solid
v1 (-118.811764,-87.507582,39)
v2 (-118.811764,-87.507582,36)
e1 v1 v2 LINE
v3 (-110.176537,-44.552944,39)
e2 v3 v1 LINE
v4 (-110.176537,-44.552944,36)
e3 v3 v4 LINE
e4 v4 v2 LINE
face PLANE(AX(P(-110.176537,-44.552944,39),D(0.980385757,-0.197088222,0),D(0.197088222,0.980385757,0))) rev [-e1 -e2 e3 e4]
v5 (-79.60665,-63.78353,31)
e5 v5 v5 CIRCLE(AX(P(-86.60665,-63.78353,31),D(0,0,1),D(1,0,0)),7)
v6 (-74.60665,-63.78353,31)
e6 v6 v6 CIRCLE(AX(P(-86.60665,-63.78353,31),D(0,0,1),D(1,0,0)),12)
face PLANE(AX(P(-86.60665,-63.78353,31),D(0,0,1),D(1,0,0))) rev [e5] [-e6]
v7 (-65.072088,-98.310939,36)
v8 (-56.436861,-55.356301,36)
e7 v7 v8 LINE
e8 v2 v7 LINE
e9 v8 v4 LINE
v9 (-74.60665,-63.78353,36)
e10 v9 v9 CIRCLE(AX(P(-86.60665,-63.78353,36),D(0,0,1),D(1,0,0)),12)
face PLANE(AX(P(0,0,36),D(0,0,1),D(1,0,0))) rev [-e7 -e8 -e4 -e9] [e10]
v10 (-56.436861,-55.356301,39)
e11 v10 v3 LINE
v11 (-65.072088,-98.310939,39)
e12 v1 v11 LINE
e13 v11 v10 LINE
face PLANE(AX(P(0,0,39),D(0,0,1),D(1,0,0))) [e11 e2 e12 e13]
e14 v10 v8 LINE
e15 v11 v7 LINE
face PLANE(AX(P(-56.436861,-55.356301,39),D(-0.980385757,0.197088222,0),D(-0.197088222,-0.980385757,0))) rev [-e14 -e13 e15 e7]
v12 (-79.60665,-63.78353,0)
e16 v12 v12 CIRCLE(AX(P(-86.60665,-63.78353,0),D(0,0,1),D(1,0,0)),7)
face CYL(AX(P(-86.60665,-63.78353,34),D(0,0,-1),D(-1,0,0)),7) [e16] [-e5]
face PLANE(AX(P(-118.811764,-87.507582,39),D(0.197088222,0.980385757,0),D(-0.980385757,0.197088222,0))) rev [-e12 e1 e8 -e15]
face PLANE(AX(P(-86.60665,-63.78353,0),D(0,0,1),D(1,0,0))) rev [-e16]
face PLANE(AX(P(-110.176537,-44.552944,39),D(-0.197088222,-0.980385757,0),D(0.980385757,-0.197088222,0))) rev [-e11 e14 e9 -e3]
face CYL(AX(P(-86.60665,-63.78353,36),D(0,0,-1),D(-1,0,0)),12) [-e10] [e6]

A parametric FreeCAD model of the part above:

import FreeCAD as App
import Part
import Sketcher

V = App.Vector
Q = App.Units.Quantity


def add_polygon(sketch, points):
    """Adds a closed chain of lines whose ends are joined by coincident constraints."""
    first, n = sketch.GeometryCount, len(points)
    for a, b in zip(points, points[1:] + points[:1]):
        sketch.addGeometry(Part.LineSegment(App.Vector(*a, 0), App.Vector(*b, 0)), False)
    for i in range(n):
        sketch.addConstraint(Sketcher.Constraint("Coincident", first + i, 2, first + (i + 1) % n, 1))

doc = App.newDocument("Part")
body = doc.addObject("PartDesign::Body", "Body")

# Sketch on XY plane
sketch1 = body.newObject("Sketcher::SketchObject", "Sketch")
sketch1.AttachmentSupport = (doc.getObject("XY_Plane"), [""])
sketch1.MapMode = "FlatFace"
sketch1.addGeometry(Part.Circle(V(-87, -64, 0), V(0, 0, 1), 7), False)
sketch1.addConstraint([
    Sketcher.Constraint("Diameter", 0, Q("14 mm")),
    Sketcher.Constraint("DistanceX", 0, 3, -1, 1, Q("86.60665 mm")),
    Sketcher.Constraint("DistanceY", 0, 3, -1, 1, Q("63.78353 mm")),
])
pad1 = body.newObject("PartDesign::Pad", "Pad")
pad1.Profile = sketch1
pad1.Length = 34

# Sketch on XY plane
sketch2 = body.newObject("Sketcher::SketchObject", "Sketch001")
sketch2.AttachmentSupport = (doc.getObject("XY_Plane"), [""])
sketch2.MapMode = "FlatFace"
sketch2.AttachmentOffset = App.Placement(V(0, 0, 34), App.Rotation())
sketch2.addGeometry(Part.Circle(V(-87, -64, 0), V(0, 0, 1), 12), False)
sketch2.addConstraint([
    Sketcher.Constraint("Diameter", 0, Q("24 mm")),
    Sketcher.Constraint("DistanceX", 0, 3, -1, 1, Q("86.60665 mm")),
    Sketcher.Constraint("DistanceY", 0, 3, -1, 1, Q("63.78353 mm")),
])
pad2 = body.newObject("PartDesign::Pad", "Pad001")
pad2.Profile = sketch2
pad2.Type = "TwoLengths"
pad2.Length = 2
pad2.Length2 = 3

# Sketch on XY plane
sketch3 = body.newObject("Sketcher::SketchObject", "Sketch002")
sketch3.AttachmentSupport = (doc.getObject("XY_Plane"), [""])
sketch3.MapMode = "FlatFace"
sketch3.AttachmentOffset = App.Placement(V(0, 0, 36), App.Rotation())
add_polygon(sketch3, [(-56, -55), (-110, -45), (-119, -88), (-65, -98)])  # lines 0-3
sketch3.addConstraint([
    Sketcher.Constraint("Perpendicular", 0, 1),
    Sketcher.Constraint("Perpendicular", 1, 2),
    Sketcher.Constraint("Perpendicular", 2, 3),
    Sketcher.Constraint("DistanceY", 3, 2, -1, 1, Q("55.356301 mm")),
    Sketcher.Constraint("DistanceY", 2, 2, -1, 1, Q("98.310939 mm")),
    Sketcher.Constraint("DistanceX", 3, 2, -1, 1, Q("56.436861 mm")),
    Sketcher.Constraint("DistanceX", 0, 2, 2, 2, Q("45.10445 mm")),
    Sketcher.Constraint("DistanceY", 1, 2, 3, 2, Q("32.151281 mm")),
])
pad3 = body.newObject("PartDesign::Pad", "Pad002")
pad3.Profile = sketch3
pad3.Length = 3

doc.recompute()
